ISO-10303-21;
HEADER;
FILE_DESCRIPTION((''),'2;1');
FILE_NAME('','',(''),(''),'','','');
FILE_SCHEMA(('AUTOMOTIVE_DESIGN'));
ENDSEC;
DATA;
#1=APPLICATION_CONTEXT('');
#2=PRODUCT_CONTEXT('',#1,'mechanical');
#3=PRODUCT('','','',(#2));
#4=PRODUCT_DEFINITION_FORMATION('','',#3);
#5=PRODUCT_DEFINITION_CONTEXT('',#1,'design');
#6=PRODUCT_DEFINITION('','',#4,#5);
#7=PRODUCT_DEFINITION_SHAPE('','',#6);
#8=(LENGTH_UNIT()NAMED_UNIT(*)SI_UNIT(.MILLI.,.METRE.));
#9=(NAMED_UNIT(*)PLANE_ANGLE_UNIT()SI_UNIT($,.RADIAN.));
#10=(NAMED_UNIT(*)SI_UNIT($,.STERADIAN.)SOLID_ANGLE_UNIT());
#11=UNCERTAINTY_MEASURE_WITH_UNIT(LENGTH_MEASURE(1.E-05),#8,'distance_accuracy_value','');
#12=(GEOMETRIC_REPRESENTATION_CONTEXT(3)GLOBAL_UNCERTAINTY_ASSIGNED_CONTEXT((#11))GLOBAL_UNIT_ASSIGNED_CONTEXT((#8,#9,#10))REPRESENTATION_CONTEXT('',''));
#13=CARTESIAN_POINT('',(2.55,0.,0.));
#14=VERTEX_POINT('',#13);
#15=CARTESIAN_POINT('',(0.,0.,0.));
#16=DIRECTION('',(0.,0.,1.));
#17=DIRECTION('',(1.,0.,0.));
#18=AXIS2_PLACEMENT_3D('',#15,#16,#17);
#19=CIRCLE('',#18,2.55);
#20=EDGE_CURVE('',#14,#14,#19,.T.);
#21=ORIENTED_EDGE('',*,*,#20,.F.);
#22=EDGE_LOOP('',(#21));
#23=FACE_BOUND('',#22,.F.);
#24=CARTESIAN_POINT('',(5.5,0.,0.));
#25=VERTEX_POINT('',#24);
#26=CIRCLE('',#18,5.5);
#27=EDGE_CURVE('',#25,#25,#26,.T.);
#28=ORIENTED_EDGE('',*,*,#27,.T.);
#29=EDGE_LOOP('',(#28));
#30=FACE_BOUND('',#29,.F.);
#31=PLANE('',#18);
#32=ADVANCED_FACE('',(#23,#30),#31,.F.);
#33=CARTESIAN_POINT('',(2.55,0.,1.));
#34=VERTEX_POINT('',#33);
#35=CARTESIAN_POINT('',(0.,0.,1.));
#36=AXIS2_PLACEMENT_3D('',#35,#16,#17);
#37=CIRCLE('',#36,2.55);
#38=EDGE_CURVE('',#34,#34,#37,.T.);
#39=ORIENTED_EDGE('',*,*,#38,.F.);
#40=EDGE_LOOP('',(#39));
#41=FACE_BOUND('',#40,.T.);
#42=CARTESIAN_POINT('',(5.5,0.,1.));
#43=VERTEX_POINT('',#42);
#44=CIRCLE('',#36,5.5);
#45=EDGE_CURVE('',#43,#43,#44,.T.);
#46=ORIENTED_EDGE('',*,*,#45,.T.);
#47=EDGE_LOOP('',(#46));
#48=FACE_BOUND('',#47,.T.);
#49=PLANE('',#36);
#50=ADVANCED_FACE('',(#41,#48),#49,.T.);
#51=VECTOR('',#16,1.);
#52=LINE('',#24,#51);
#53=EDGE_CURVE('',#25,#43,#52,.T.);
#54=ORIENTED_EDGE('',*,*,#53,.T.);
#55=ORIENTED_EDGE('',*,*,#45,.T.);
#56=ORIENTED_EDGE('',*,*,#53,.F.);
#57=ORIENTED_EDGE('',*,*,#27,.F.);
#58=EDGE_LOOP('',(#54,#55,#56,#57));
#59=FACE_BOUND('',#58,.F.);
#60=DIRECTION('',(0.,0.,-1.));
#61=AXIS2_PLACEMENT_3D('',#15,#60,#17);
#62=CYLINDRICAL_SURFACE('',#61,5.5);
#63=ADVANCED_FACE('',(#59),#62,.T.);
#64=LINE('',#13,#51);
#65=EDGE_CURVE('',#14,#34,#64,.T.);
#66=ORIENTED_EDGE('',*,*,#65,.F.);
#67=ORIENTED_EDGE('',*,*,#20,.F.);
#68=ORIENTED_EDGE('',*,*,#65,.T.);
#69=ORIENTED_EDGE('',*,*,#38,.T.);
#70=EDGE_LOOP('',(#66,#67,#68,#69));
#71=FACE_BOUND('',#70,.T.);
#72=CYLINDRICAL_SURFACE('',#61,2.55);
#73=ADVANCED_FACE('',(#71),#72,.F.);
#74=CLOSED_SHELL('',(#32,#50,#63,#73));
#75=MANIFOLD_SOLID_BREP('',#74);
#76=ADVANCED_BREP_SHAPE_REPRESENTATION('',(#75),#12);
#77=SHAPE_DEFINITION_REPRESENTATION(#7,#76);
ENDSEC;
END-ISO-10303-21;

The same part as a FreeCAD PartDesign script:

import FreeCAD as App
import Part
import Sketcher
from FreeCAD import Vector

doc = App.newDocument("Part")
body = doc.addObject("PartDesign::Body", "Body")

sketch1 = body.newObject("Sketcher::SketchObject", "Sketch")
sketch1.AttachmentSupport = (doc.getObject("XY_Plane"), [""])
sketch1.MapMode = "FlatFace"
sketch1.addGeometry(Part.Circle(Vector(0, 0, 0), Vector(0, 0, 1), 5.5), False)
sketch1.addGeometry(Part.Circle(Vector(0, 0, 0), Vector(0, 0, 1), 2.5), False)
sketch1.addConstraint(Sketcher.Constraint("Coincident", 0, 3, -1, 1))
sketch1.addConstraint(Sketcher.Constraint("Coincident", 1, 3, -1, 1))
sketch1.addConstraint(Sketcher.Constraint("Diameter", 0, 11.0))
sketch1.addConstraint(Sketcher.Constraint("Diameter", 1, 5.1))
pad1 = body.newObject("PartDesign::Pad", "Pad")
pad1.Profile = sketch1
pad1.Length = 1

doc.recompute()
